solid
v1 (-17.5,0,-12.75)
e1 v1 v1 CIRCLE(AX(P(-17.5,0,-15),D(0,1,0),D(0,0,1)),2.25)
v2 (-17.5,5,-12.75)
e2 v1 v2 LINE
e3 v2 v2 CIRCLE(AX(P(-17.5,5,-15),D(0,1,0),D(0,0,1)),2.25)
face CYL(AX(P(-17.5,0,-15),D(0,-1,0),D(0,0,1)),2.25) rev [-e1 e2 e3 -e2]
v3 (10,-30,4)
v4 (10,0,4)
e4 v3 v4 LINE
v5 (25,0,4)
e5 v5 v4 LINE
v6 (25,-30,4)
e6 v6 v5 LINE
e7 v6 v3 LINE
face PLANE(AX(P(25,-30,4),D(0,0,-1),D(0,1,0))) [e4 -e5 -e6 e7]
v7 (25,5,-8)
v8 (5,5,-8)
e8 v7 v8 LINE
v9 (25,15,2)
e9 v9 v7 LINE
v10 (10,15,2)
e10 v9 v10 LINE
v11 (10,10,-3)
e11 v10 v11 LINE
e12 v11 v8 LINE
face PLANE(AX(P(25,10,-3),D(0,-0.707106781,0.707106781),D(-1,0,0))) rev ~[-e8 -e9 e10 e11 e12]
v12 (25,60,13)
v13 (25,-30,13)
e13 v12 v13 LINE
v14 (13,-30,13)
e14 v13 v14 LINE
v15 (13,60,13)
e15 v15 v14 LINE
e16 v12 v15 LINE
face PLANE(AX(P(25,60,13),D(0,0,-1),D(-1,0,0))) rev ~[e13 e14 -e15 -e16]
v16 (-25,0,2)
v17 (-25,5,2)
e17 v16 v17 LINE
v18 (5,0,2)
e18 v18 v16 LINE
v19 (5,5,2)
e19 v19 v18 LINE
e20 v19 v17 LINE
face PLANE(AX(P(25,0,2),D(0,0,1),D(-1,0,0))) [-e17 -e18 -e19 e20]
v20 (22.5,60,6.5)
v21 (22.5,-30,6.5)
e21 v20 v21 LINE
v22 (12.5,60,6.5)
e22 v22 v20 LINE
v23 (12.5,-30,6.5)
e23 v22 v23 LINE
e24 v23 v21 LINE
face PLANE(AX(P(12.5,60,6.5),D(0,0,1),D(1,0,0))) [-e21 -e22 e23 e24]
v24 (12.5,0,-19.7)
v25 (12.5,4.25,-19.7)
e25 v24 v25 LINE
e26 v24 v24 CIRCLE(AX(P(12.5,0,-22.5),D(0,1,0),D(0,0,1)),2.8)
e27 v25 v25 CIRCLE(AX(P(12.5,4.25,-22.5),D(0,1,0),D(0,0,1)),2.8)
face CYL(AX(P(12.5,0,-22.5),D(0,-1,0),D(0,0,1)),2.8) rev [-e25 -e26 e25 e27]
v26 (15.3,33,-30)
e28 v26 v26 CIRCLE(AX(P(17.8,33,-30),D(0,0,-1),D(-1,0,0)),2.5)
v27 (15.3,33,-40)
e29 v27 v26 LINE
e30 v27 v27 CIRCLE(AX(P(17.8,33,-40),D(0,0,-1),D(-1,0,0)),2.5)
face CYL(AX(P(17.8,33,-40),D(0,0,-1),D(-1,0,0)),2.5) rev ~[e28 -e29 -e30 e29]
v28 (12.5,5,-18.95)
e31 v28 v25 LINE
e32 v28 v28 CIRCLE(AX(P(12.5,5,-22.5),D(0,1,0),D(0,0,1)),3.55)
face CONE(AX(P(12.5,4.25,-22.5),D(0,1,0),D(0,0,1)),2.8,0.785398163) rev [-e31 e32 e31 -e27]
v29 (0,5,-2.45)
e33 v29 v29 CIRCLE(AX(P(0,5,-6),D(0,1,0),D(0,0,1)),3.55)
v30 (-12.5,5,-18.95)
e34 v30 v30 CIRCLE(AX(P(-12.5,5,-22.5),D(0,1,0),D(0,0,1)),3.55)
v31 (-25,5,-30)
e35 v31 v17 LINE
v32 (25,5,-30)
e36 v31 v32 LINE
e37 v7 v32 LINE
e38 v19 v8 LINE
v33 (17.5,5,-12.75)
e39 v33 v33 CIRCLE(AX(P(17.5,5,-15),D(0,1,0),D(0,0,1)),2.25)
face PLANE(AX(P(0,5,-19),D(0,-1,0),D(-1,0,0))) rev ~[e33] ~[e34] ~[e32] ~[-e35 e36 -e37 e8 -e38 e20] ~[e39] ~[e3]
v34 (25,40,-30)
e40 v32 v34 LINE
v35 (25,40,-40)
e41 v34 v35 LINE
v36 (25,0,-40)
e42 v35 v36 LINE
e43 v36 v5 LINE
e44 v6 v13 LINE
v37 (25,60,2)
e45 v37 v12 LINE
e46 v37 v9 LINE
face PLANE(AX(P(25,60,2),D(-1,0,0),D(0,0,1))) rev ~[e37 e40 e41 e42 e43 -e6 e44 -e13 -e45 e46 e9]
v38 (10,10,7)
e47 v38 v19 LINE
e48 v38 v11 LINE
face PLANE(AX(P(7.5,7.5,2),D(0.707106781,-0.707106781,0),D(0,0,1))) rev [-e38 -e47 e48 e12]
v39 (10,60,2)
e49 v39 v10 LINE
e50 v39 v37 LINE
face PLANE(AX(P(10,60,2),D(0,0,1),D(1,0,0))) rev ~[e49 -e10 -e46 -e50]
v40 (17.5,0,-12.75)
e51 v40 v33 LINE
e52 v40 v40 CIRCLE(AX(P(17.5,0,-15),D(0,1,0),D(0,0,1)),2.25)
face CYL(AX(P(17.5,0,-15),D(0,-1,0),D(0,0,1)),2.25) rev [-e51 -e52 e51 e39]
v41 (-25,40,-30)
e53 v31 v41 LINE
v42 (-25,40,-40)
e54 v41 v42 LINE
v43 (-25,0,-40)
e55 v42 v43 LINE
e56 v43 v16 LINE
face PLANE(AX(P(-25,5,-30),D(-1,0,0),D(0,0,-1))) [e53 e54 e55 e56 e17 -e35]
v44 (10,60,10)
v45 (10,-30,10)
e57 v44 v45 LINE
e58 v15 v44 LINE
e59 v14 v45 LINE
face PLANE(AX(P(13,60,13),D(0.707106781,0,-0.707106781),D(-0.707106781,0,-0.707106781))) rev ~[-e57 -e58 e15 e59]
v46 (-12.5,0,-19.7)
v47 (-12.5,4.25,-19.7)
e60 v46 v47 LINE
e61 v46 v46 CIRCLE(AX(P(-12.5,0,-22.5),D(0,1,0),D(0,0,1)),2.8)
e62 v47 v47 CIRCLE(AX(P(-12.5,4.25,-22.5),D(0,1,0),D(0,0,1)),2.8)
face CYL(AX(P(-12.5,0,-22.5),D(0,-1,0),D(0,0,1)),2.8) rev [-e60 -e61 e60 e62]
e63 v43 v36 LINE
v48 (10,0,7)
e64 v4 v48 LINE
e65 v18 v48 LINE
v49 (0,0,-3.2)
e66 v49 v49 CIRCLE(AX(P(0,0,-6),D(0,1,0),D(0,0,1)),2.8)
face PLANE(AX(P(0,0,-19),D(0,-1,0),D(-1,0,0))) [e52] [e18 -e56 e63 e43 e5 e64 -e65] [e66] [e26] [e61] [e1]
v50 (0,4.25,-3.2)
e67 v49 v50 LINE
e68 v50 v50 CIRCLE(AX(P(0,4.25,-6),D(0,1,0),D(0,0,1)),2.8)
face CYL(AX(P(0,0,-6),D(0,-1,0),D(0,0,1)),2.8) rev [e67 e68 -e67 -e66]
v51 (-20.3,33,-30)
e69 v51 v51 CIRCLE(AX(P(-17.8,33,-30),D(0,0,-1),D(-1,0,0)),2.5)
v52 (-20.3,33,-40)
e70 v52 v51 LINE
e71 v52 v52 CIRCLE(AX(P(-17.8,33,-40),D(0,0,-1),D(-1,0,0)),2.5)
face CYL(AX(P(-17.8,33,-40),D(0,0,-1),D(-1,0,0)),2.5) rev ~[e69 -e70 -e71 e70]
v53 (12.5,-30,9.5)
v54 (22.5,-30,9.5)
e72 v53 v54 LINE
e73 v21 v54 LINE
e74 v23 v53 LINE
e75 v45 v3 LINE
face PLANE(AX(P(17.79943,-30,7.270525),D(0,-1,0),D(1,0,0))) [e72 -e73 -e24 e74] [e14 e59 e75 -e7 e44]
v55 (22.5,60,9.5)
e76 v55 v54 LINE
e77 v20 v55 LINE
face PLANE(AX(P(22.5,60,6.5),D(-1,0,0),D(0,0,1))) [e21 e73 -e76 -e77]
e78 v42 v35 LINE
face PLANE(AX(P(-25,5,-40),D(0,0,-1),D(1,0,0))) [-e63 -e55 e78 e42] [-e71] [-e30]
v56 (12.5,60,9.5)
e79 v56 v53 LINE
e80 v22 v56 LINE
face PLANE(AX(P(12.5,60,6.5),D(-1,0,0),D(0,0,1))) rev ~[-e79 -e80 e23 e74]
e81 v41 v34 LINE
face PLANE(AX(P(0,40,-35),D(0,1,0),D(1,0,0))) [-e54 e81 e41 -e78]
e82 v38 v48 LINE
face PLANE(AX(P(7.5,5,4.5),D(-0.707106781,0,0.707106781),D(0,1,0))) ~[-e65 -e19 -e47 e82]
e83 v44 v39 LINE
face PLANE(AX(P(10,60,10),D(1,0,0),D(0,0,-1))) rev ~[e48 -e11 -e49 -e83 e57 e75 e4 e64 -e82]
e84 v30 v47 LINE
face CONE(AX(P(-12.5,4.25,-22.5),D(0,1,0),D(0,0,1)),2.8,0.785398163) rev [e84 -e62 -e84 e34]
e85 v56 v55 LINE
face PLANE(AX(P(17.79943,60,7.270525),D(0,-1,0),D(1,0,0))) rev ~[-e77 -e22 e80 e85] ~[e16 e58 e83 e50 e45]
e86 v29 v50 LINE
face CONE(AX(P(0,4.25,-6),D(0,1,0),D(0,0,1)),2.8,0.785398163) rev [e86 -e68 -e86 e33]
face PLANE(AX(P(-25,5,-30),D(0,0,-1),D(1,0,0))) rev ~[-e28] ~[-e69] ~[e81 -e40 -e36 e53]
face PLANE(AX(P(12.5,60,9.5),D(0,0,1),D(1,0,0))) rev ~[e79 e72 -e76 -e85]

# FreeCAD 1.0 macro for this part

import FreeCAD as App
import Part
import Sketcher
from FreeCAD import Vector


def edges_at(feature, points):
    """Names of the edges that pass closest to the given points."""
    edges = feature.Shape.Edges
    near = lambda p: min(range(len(edges)), key=lambda i: edges[i].distToShape(Part.Vertex(*p))[0])
    return sorted({f"Edge{near(p) + 1}" for p in points})


def add_polygon(sketch, points):
    """Adds a closed chain of lines whose ends are joined by coincident constraints."""
    first, n = sketch.GeometryCount, len(points)
    for a, b in zip(points, points[1:] + points[:1]):
        sketch.addGeometry(Part.LineSegment(App.Vector(*a, 0), App.Vector(*b, 0)), False)
    for i in range(n):
        sketch.addConstraint(Sketcher.Constraint("Coincident", first + i, 2, first + (i + 1) % n, 1))

doc = App.newDocument("Part")
body = doc.addObject("PartDesign::Body", "Body")

sketch1 = body.newObject("Sketcher::SketchObject", "Sketch")
sketch1.AttachmentSupport = (doc.getObject("XZ_Plane"), [""])
sketch1.MapMode = "FlatFace"
add_polygon(sketch1, [(-25, -40), (-25, 2), (25, 2), (25, -40)])
sketch1.addGeometry(Part.Circle(Vector(0, -6, 0), Vector(0, 0, 1), 2.8), False)
sketch1.addGeometry(Part.Circle(Vector(17.5, -15, 0), Vector(0, 0, 1), 2.2), False)
sketch1.addGeometry(Part.Circle(Vector(12.5, -22.5, 0), Vector(0, 0, 1), 2.8), False)
sketch1.addGeometry(Part.Circle(Vector(-17.5, -15, 0), Vector(0, 0, 1), 2.2), False)
sketch1.addGeometry(Part.Circle(Vector(-12.5, -22.5, 0), Vector(0, 0, 1), 2.8), False)
sketch1.addConstraint([
    Sketcher.Constraint("Vertical", 0),
    Sketcher.Constraint("Horizontal", 1),
    Sketcher.Constraint("Vertical", 2),
    Sketcher.Constraint("Horizontal", 3),
    Sketcher.Constraint("Equal", 4, 6),
    Sketcher.Constraint("Equal", 5, 7),
    Sketcher.Constraint("Equal", 6, 8),
    Sketcher.Constraint("Symmetric", 5, 3, 7, 3, -2),
    Sketcher.Constraint("Symmetric", 6, 3, 8, 3, -2),
    Sketcher.Constraint("PointOnObject", 4, 3, -2),
    Sketcher.Constraint("Diameter", 4, 5.6),
    Sketcher.Constraint("Diameter", 5, 4.5),
    Sketcher.Constraint("DistanceX", 1, 1, 1, 2, 50.0),
    Sketcher.Constraint("DistanceY", 0, 1, 0, 2, 42.0),
    Sketcher.Constraint("DistanceY", 4, 3, -1, 1, 6.0),
    Sketcher.Constraint("DistanceY", 5, 3, -1, 1, 15.0),
    Sketcher.Constraint("DistanceX", 0, 2, -1, 1, 25.0),
    Sketcher.Constraint("DistanceY", -1, 1, 0, 2, 2.0),
    Sketcher.Constraint("DistanceX", 6, 3, 5, 3, 5.0),
    Sketcher.Constraint("DistanceX", 7, 3, 6, 3, 30.0),
    Sketcher.Constraint("DistanceY", 6, 3, -1, 1, 22.5),
])
pad1 = body.newObject("PartDesign::Pad", "Pad")
pad1.Profile = sketch1
pad1.Length = 5
pad1.Reversed = True

sketch2 = body.newObject("Sketcher::SketchObject", "Sketch001")
sketch2.AttachmentSupport = (doc.getObject("XZ_Plane"), [""])
sketch2.MapMode = "FlatFace"
sketch2.AttachmentOffset = App.Placement(Vector(0, 0, -5), App.Rotation())
add_polygon(sketch2, [(-25, -40), (-25, -30), (25, -30), (25, -40)])
sketch2.addConstraint([
    Sketcher.Constraint("Vertical", 0),
    Sketcher.Constraint("Horizontal", 1),
    Sketcher.Constraint("Vertical", 2),
    Sketcher.Constraint("Horizontal", 3),
    Sketcher.Constraint("DistanceX", 1, 1, 1, 2, 50.0),
    Sketcher.Constraint("DistanceY", 0, 1, 0, 2, 10.0),
    Sketcher.Constraint("DistanceX", 0, 2, -1, 1, 25.0),
    Sketcher.Constraint("DistanceY", 0, 2, -1, 1, 30.0),
])
pad2 = body.newObject("PartDesign::Pad", "Pad001")
pad2.Profile = sketch2
pad2.Length = 35
pad2.Reversed = True

sketch3 = body.newObject("Sketcher::SketchObject", "Sketch002")
sketch3.AttachmentSupport = (doc.getObject("XY_Plane"), [""])
sketch3.MapMode = "FlatFace"
sketch3.AttachmentOffset = App.Placement(Vector(0, 0, -40), App.Rotation())
sketch3.addGeometry([
    Part.Circle(Vector(17.8, 33, 0), Vector(0, 0, 1), 2.5),
    Part.Circle(Vector(-17.8, 33, 0), Vector(0, 0, 1), 2.5),
], False)
sketch3.addConstraint([
    Sketcher.Constraint("Equal", 0, 1),
    Sketcher.Constraint("Symmetric", 0, 3, 1, 3, -2),
    Sketcher.Constraint("Diameter", 0, 5.0),
    Sketcher.Constraint("DistanceY", -1, 1, 0, 3, 33.0),
    Sketcher.Constraint("DistanceX", -1, 1, 0, 3, 17.8),
])
pocket1 = body.newObject("PartDesign::Pocket", "Pocket")
pocket1.Profile = sketch3
pocket1.Type = "ThroughAll"
pocket1.Reversed = True
doc.recompute()

chamfer = body.newObject("PartDesign::Chamfer", "Chamfer")
chamfer.Base = (pocket1, edges_at(pocket1, [(-12.5, 5, -25.3), (12.5, 5, -25.3), (0, 5, -8.8)]))
chamfer.Size = 0.75

sketch4 = body.newObject("Sketcher::SketchObject", "Sketch003")
sketch4.AttachmentSupport = (doc.getObject("XZ_Plane"), [""])
sketch4.MapMode = "FlatFace"
add_polygon(sketch4, [(13, 13), (10, 10), (10, 2), (25, 2), (25, 13)])
add_polygon(sketch4, [(22.5, 6.5), (12.5, 6.5), (12.5, 9.5), (22.5, 9.5)])
sketch4.addConstraint([
    Sketcher.Constraint("Vertical", 1),
    Sketcher.Constraint("Horizontal", 2),
    Sketcher.Constraint("Vertical", 3),
    Sketcher.Constraint("Horizontal", 4),
    Sketcher.Constraint("Horizontal", 5),
    Sketcher.Constraint("Vertical", 6),
    Sketcher.Constraint("Horizontal", 7),
    Sketcher.Constraint("Vertical", 8),
    Sketcher.Constraint("DistanceX", 2, 1, 2, 2, 15.0),
    Sketcher.Constraint("DistanceX", 4, 2, 4, 1, 12.0),
    Sketcher.Constraint("DistanceX", 5, 2, 5, 1, 10.0),
    Sketcher.Constraint("DistanceY", 1, 2, 1, 1, 8.0),
    Sketcher.Constraint("DistanceY", 3, 1, 3, 2, 11.0),
    Sketcher.Constraint("DistanceY", 6, 1, 6, 2, 3.0),
    Sketcher.Constraint("DistanceX", -1, 1, 0, 2, 10.0),
    Sketcher.Constraint("DistanceY", -1, 1, 0, 2, 10.0),
    Sketcher.Constraint("DistanceX", -1, 1, 5, 2, 12.5),
    Sketcher.Constraint("DistanceY", -1, 1, 5, 2, 6.5),
])
pad3 = body.newObject("PartDesign::Pad", "Pad002")
pad3.Profile = sketch4
pad3.Type = "TwoLengths"
pad3.Length = 30
pad3.Length2 = 60
doc.recompute()

chamfer2 = body.newObject("PartDesign::Chamfer", "Chamfer001")
chamfer2.Base = (pad3, edges_at(pad3, [(17.5, 5, 2)]))
chamfer2.Size = 10
doc.recompute()

chamfer3 = body.newObject("PartDesign::Chamfer", "Chamfer002")
chamfer3.Base = (chamfer2, edges_at(chamfer2, [(10, 2.5, 2), (10, 5, -3)]))
chamfer3.Size = 5

sketch5 = body.newObject("Sketcher::SketchObject", "Sketch004")
sketch5.AttachmentSupport = (doc.getObject("YZ_Plane"), [""])
sketch5.MapMode = "FlatFace"
sketch5.AttachmentOffset = App.Placement(Vector(0, 0, 25), App.Rotation())
add_polygon(sketch5, [(0, 4), (-30, 4), (-30, 2), (0, 2)])
sketch5.addConstraint([
    Sketcher.Constraint("Horizontal", 0),
    Sketcher.Constraint("Vertical", 1),
    Sketcher.Constraint("Horizontal", 2),
    Sketcher.Constraint("Vertical", 3),
    Sketcher.Constraint("PointOnObject", 2, 2, -2),
    Sketcher.Constraint("DistanceX", 0, 2, 0, 1, 30.0),
    Sketcher.Constraint("DistanceY", 1, 2, 1, 1, 2.0),
    Sketcher.Constraint("DistanceY", -1, 1, 0, 2, 4.0),
])
pocket2 = body.newObject("PartDesign::Pocket", "Pocket001")
pocket2.Profile = sketch5
pocket2.Type = "ThroughAll"

doc.recompute()
